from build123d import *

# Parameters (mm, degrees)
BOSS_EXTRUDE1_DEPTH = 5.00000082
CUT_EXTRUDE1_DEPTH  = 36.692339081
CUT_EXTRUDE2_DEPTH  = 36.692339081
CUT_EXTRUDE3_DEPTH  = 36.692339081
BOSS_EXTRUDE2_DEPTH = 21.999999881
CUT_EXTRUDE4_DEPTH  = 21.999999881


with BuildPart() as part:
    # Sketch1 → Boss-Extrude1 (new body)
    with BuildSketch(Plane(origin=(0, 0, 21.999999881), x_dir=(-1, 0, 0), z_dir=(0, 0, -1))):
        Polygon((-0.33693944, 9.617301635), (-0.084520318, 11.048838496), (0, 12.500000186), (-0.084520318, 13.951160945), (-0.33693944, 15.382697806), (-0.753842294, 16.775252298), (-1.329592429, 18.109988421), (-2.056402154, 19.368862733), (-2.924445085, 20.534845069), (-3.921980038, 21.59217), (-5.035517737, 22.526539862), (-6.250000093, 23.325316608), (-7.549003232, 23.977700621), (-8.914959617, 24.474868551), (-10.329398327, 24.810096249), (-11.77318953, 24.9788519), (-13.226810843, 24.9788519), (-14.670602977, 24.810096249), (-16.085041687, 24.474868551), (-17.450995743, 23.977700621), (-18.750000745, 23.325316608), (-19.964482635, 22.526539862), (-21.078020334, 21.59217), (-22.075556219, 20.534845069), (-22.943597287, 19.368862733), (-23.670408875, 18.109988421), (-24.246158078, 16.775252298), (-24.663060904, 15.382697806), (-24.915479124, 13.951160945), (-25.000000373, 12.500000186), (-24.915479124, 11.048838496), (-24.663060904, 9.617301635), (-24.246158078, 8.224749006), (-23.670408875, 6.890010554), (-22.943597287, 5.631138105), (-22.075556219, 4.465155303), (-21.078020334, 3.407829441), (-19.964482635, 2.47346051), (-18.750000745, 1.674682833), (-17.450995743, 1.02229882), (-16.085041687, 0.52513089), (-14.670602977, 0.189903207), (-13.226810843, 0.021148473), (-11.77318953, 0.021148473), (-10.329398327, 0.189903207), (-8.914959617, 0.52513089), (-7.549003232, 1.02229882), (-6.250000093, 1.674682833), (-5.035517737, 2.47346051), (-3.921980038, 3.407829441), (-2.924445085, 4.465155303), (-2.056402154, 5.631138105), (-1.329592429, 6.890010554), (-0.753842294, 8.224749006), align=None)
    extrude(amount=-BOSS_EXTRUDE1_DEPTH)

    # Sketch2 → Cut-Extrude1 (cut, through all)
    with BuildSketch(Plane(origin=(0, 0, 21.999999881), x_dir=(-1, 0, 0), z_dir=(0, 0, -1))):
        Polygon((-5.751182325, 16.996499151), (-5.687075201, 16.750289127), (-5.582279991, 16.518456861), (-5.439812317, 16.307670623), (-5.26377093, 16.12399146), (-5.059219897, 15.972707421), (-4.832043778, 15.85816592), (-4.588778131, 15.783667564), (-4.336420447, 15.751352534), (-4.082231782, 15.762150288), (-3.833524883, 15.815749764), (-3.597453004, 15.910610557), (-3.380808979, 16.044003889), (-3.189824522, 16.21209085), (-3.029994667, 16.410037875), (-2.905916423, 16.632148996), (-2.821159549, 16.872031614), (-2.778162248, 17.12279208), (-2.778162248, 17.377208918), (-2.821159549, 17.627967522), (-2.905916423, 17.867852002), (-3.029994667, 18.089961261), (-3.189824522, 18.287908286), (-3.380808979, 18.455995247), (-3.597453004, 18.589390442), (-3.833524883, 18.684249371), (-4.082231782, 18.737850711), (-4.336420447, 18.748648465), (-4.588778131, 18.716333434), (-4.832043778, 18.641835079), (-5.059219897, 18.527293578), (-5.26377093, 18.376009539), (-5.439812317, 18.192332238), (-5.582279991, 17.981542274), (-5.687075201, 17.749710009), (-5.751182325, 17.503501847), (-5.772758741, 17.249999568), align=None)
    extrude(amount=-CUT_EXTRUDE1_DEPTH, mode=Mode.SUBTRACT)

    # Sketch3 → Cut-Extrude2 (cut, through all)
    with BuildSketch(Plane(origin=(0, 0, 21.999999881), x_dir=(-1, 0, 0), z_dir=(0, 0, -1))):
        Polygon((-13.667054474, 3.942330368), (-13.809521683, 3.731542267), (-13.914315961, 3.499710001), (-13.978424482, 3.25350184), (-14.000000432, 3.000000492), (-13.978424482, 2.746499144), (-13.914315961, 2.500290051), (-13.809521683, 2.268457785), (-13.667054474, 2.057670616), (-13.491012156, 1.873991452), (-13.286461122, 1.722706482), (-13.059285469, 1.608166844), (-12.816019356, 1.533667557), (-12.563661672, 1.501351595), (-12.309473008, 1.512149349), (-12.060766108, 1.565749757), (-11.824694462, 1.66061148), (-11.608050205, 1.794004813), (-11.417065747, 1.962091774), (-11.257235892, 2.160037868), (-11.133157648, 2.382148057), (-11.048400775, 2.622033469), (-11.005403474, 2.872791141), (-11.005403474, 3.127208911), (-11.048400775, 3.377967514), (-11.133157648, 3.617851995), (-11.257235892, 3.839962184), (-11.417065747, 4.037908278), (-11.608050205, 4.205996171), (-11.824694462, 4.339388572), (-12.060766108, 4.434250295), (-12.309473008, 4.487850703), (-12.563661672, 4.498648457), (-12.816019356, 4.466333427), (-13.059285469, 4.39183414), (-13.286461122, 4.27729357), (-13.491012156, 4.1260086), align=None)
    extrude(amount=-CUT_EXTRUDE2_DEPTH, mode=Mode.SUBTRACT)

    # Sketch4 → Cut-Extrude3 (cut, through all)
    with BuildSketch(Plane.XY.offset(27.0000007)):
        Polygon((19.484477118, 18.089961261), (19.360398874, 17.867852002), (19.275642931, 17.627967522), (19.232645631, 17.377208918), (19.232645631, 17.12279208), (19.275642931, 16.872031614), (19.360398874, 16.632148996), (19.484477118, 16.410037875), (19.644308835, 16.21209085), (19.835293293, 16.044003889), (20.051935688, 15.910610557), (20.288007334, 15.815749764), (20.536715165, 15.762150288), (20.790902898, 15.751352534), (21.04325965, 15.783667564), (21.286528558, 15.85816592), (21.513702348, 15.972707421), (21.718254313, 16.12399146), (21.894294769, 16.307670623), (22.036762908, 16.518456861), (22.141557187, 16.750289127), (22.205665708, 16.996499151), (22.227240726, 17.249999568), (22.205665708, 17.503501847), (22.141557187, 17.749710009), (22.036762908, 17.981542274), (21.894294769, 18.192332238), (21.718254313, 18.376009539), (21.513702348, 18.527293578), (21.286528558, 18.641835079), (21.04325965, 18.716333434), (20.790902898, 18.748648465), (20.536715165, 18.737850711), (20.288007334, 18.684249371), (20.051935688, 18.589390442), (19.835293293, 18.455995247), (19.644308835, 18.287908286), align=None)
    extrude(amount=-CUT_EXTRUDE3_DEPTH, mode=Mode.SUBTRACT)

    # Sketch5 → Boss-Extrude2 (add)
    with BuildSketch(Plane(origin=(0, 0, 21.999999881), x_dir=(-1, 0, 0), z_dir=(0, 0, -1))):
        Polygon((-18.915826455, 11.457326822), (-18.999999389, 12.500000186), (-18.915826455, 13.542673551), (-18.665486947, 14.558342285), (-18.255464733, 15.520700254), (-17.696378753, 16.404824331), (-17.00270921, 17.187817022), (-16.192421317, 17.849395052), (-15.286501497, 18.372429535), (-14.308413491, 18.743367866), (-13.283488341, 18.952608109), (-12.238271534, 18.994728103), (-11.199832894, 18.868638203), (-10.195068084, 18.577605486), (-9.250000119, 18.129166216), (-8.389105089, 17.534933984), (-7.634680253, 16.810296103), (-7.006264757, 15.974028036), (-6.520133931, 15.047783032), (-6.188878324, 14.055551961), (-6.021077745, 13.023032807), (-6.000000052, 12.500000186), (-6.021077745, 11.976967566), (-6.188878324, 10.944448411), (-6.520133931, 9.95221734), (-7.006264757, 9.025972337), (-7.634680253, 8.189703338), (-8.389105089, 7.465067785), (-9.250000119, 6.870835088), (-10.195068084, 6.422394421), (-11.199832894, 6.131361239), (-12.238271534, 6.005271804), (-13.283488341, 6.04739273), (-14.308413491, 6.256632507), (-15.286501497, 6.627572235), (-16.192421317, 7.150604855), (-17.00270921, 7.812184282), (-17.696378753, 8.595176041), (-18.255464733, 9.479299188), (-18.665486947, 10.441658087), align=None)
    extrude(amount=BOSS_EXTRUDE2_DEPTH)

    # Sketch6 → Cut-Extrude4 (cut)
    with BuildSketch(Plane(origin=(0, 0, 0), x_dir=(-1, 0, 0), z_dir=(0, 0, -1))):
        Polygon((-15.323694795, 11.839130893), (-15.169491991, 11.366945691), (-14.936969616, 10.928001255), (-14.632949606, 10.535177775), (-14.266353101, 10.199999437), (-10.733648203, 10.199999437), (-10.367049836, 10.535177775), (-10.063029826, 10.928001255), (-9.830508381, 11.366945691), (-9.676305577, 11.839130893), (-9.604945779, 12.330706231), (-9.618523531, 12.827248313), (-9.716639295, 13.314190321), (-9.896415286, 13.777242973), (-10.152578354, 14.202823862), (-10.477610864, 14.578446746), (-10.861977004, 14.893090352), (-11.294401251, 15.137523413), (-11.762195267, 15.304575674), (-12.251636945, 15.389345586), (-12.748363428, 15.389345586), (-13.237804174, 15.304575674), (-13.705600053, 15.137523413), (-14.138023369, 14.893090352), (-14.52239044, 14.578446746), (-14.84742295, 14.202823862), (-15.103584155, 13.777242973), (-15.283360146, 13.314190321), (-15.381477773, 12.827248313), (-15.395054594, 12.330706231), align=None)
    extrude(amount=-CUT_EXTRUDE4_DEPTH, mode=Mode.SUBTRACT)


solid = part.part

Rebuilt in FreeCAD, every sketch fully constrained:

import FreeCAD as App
import Part
import Sketcher
from FreeCAD import Vector
Q = App.Units.Quantity


def add_polygon(sketch, points):
    """Adds a closed chain of lines whose ends are joined by coincident constraints."""
    first, n = sketch.GeometryCount, len(points)
    for a, b in zip(points, points[1:] + points[:1]):
        sketch.addGeometry(Part.LineSegment(App.Vector(*a, 0), App.Vector(*b, 0)), False)
    for i in range(n):
        sketch.addConstraint(Sketcher.Constraint("Coincident", first + i, 2, first + (i + 1) % n, 1))

doc = App.newDocument("Part")
body = doc.addObject("PartDesign::Body", "Body")

# Sketch on XY plane
sketch1 = doc.addObject("Sketcher::SketchObject", "Sketch")
body.addObject(sketch1)
sketch1.AttachmentSupport = (doc.XY_Plane, [""])
sketch1.MapMode = "FlatFace"
sketch1.AttachmentOffset = App.Placement(Vector(0, 0, 22), App.Rotation())
add_polygon(sketch1, [(0.336939, 9.617302), (0.08452, 11.048838), (0, 12.5), (0.08452, 13.951161), (0.336939, 15.382698), (0.753842, 16.775252), (1.329592, 18.109988), (2.056402, 19.368863), (2.924445, 20.534845), (3.92198, 21.59217), (5.035518, 22.52654), (6.25, 23.325317), (7.549003, 23.977701), (8.91496, 24.474869), (10.329398, 24.810096), (11.77319, 24.978852), (13.226811, 24.978852), (14.670603, 24.810096), (16.085042, 24.474869), (17.450996, 23.977701), (18.750001, 23.325317), (19.964483, 22.52654), (21.07802, 21.59217), (22.075556, 20.534845), (22.943597, 19.368863), (23.670409, 18.109988), (24.246158, 16.775252), (24.663061, 15.382698), (24.915479, 13.951161), (25, 12.5), (24.915479, 11.048838), (24.663061, 9.617302), (24.246158, 8.224749), (23.670409, 6.890011), (22.943597, 5.631138), (22.075556, 4.465155), (21.07802, 3.407829), (19.964483, 2.473461), (18.750001, 1.674683), (17.450996, 1.022299), (16.085042, 0.525131), (14.670603, 0.189903), (13.226811, 0.021148), (11.77319, 0.021148), (10.329398, 0.189903), (8.91496, 0.525131), (7.549003, 1.022299), (6.25, 1.674683), (5.035518, 2.473461), (3.92198, 3.407829), (2.924445, 4.465155), (2.056402, 5.631138), (1.329592, 6.890011), (0.753842, 8.224749)])  # lines 0-53
sketch1.addConstraint([
    Sketcher.Constraint("Horizontal", 15),
    Sketcher.Constraint("Horizontal", 42),
    Sketcher.Constraint("PointOnObject", 1, 2, -2),
    Sketcher.Constraint("Parallel", 0, 27),
    Sketcher.Constraint("Parallel", 1, 28),
    Sketcher.Constraint("Parallel", 2, 29),
    Sketcher.Constraint("Parallel", 3, 30),
    Sketcher.Constraint("Parallel", 4, 31),
    Sketcher.Constraint("Parallel", 5, 32),
    Sketcher.Constraint("Parallel", 6, 33),
    Sketcher.Constraint("Parallel", 7, 34),
    Sketcher.Constraint("Parallel", 8, 35),
    Sketcher.Constraint("Parallel", 9, 36),
    Sketcher.Constraint("Parallel", 10, 37),
    Sketcher.Constraint("Parallel", 11, 38),
    Sketcher.Constraint("Parallel", 12, 39),
    Sketcher.Constraint("Parallel", 13, 40),
    Sketcher.Constraint("Parallel", 14, 41),
    Sketcher.Constraint("Parallel", 16, 43),
    Sketcher.Constraint("Parallel", 17, 44),
    Sketcher.Constraint("Parallel", 18, 45),
    Sketcher.Constraint("Parallel", 19, 46),
    Sketcher.Constraint("Parallel", 20, 47),
    Sketcher.Constraint("Parallel", 21, 48),
    Sketcher.Constraint("Parallel", 22, 49),
    Sketcher.Constraint("Parallel", 23, 50),
    Sketcher.Constraint("Parallel", 24, 51),
    Sketcher.Constraint("Parallel", 25, 52),
    Sketcher.Constraint("Parallel", 26, 53),
    Sketcher.Constraint("Horizontal", 13, 2, 16, 2),
    Sketcher.Constraint("Horizontal", 12, 2, 17, 2),
    Sketcher.Constraint("Horizontal", 11, 2, 18, 2),
    Sketcher.Constraint("Horizontal", 10, 2, 19, 2),
    Sketcher.Constraint("Horizontal", 9, 2, 20, 2),
    Sketcher.Constraint("Horizontal", 8, 2, 21, 2),
    Sketcher.Constraint("Horizontal", 7, 2, 22, 2),
    Sketcher.Constraint("Horizontal", 6, 2, 23, 2),
    Sketcher.Constraint("Horizontal", 5, 2, 24, 2),
    Sketcher.Constraint("Horizontal", 4, 2, 25, 2),
    Sketcher.Constraint("Horizontal", 3, 2, 26, 2),
    Sketcher.Constraint("Horizontal", 2, 2, 27, 2),
    Sketcher.Constraint("Horizontal", 1, 2, 28, 2),
    Sketcher.Constraint("Horizontal", 0, 2, 29, 2),
    Sketcher.Constraint("Horizontal", 40, 2, 43, 2),
    Sketcher.Constraint("Horizontal", 39, 2, 44, 2),
    Sketcher.Constraint("Horizontal", 38, 2, 45, 2),
    Sketcher.Constraint("Horizontal", 37, 2, 46, 2),
    Sketcher.Constraint("Horizontal", 36, 2, 47, 2),
    Sketcher.Constraint("Horizontal", 35, 2, 48, 2),
    Sketcher.Constraint("Horizontal", 34, 2, 49, 2),
    Sketcher.Constraint("Horizontal", 33, 2, 50, 2),
    Sketcher.Constraint("Horizontal", 32, 2, 51, 2),
    Sketcher.Constraint("Horizontal", 31, 2, 52, 2),
    Sketcher.Constraint("Horizontal", 30, 2, 53, 2),
    Sketcher.Constraint("Vertical", 0, 2, 2, 2),
    Sketcher.Constraint("Vertical", 27, 2, 29, 2),
    Sketcher.Constraint("Vertical", 26, 2, 30, 2),
    Sketcher.Constraint("Vertical", 25, 2, 31, 2),
    Sketcher.Constraint("Vertical", 24, 2, 32, 2),
    Sketcher.Constraint("Vertical", 23, 2, 33, 2),
    Sketcher.Constraint("Vertical", 22, 2, 34, 2),
    Sketcher.Constraint("Vertical", 21, 2, 35, 2),
    Sketcher.Constraint("Vertical", 20, 2, 36, 2),
    Sketcher.Constraint("Vertical", 19, 2, 37, 2),
    Sketcher.Constraint("Vertical", 18, 2, 38, 2),
    Sketcher.Constraint("Vertical", 17, 2, 39, 2),
    Sketcher.Constraint("Vertical", 16, 2, 40, 2),
    Sketcher.Constraint("Vertical", 15, 2, 41, 2),
    Sketcher.Constraint("Vertical", 14, 2, 42, 2),
    Sketcher.Constraint("Vertical", 13, 2, 43, 2),
    Sketcher.Constraint("Vertical", 12, 2, 44, 2),
    Sketcher.Constraint("Vertical", 11, 2, 45, 2),
    Sketcher.Constraint("Vertical", 10, 2, 46, 2),
    Sketcher.Constraint("Vertical", 9, 2, 47, 2),
    Sketcher.Constraint("Vertical", 8, 2, 48, 2),
    Sketcher.Constraint("Vertical", 7, 2, 49, 2),
    Sketcher.Constraint("Vertical", 6, 2, 50, 2),
    Sketcher.Constraint("Vertical", 5, 2, 51, 2),
    Sketcher.Constraint("Vertical", 4, 2, 52, 2),
    Sketcher.Constraint("Vertical", 3, 2, 53, 2),
    Sketcher.Constraint("Equal", 0, 1),
    Sketcher.Constraint("Equal", 3, 4),
    Sketcher.Constraint("Equal", 3, 5),
    Sketcher.Constraint("Equal", 4, 6),
    Sketcher.Constraint("Equal", 6, 7),
    Sketcher.Constraint("Equal", 7, 8),
    Sketcher.Constraint("Equal", 8, 9),
    Sketcher.Constraint("Equal", 9, 10),
    Sketcher.Constraint("Equal", 10, 11),
    Sketcher.Constraint("Equal", 11, 12),
    Sketcher.Constraint("Equal", 12, 13),
    Sketcher.Constraint("Equal", 13, 14),
    Sketcher.Constraint("Angle", 12, Q("20.000017 deg")),
    Sketcher.Constraint("Angle", 24, Q("-59.999994 deg")),
    Sketcher.Constraint("Angle", 27, Q("-80.000014 deg")),
    Sketcher.Constraint("Angle", 36, Q("-140.000004 deg")),
    Sketcher.Constraint("DistanceX", -1, 1, 28, 2, Q("25 mm")),
    Sketcher.Constraint("DistanceY", -1, 1, 1, 2, Q("12.5 mm")),
    Sketcher.Constraint("DistanceX", -1, 1, 10, 2, Q("6.25 mm")),
    Sketcher.Constraint("DistanceX", 15, 1, 15, 2, Q("1.453621 mm")),
    Sketcher.Constraint("DistanceY", -1, 1, 11, 2, Q("23.977701 mm")),
    Sketcher.Constraint("DistanceX", -1, 1, 13, 2, Q("10.329398 mm")),
    Sketcher.Constraint("DistanceY", -1, 1, 30, 2, Q("9.617302 mm")),
    Sketcher.Constraint("DistanceY", 2, 2, 6, 2, Q("5.417702 mm")),
    Sketcher.Constraint("DistanceX", 6, 2, 11, 2, Q("5.492601 mm")),
    Sketcher.Constraint("DistanceY", 8, 2, 12, 2, Q("2.882699 mm")),
    Sketcher.Constraint("DistanceX", 11, 2, 16, 2, Q("7.1216 mm")),
    Sketcher.Constraint("DistanceX", 22, 2, 25, 2, Q("2.170602 mm")),
])
pad1 = doc.addObject("PartDesign::Pad", "Pad")
body.addObject(pad1)
pad1.Profile = sketch1
pad1.Length = 5.000001

# Sketch on XY plane
sketch2 = doc.addObject("Sketcher::SketchObject", "Sketch001")
body.addObject(sketch2)
sketch2.AttachmentSupport = (doc.XY_Plane, [""])
sketch2.MapMode = "FlatFace"
sketch2.AttachmentOffset = App.Placement(Vector(0, 0, 22), App.Rotation())
add_polygon(sketch2, [(5.751182, 16.996499), (5.687075, 16.750289), (5.58228, 16.518457), (5.439812, 16.307671), (5.263771, 16.123991), (5.05922, 15.972707), (4.832044, 15.858166), (4.588778, 15.783668), (4.33642, 15.751353), (4.082232, 15.76215), (3.833525, 15.81575), (3.597453, 15.910611), (3.380809, 16.044004), (3.189825, 16.212091), (3.029995, 16.410038), (2.905916, 16.632149), (2.82116, 16.872032), (2.778162, 17.122792), (2.778162, 17.377209), (2.82116, 17.627968), (2.905916, 17.867852), (3.029995, 18.089961), (3.189825, 18.287908), (3.380809, 18.455995), (3.597453, 18.58939), (3.833525, 18.684249), (4.082232, 18.737851), (4.33642, 18.748648), (4.588778, 18.716333), (4.832044, 18.641835), (5.05922, 18.527294), (5.263771, 18.37601), (5.439812, 18.192332), (5.58228, 17.981542), (5.687075, 17.74971), (5.751182, 17.503502), (5.772759, 17.25)])  # lines 0-36
sketch2.addConstraint([
    Sketcher.Constraint("Vertical", 17),
    Sketcher.Constraint("DistanceY", -1, 1, 35, 2, Q("17.25 mm")),
    Sketcher.Constraint("DistanceY", 31, 2, 27, 2, Q("0.524001 mm")),
    Sketcher.Constraint("DistanceY", -1, 1, 34, 2, Q("17.503502 mm")),
    Sketcher.Constraint("DistanceY", -1, 1, 36, 2, Q("16.996499 mm")),
    Sketcher.Constraint("DistanceY", 6, 2, 5, 2, Q("0.074498 mm")),
    Sketcher.Constraint("DistanceX", 6, 2, 1, 2, Q("0.993502 mm")),
    Sketcher.Constraint("DistanceX", 7, 2, 4, 2, Q("0.722799 mm")),
    Sketcher.Constraint("DistanceY", 8, 2, 9, 2, Q("0.053599 mm")),
    Sketcher.Constraint("DistanceX", 12, 2, 9, 2, Q("0.6437 mm")),
    Sketcher.Constraint("DistanceY", 9, 2, 14, 2, Q("0.816399 mm")),
    Sketcher.Constraint("DistanceY", 12, 2, 16, 2, Q("0.910701 mm")),
    Sketcher.Constraint("DistanceY", 17, 2, 21, 2, Q("0.910699 mm")),
    Sketcher.Constraint("DistanceX", 21, 2, 24, 2, Q("0.6437 mm")),
    Sketcher.Constraint("DistanceY", 24, 2, 25, 2, Q("0.053601 mm")),
    Sketcher.Constraint("DistanceY", 24, 2, 26, 2, Q("0.064399 mm")),
    Sketcher.Constraint("DistanceY", 28, 2, 27, 2, Q("0.074498 mm")),
    Sketcher.Constraint("DistanceX", 26, 2, 29, 2, Q("0.722799 mm")),
    Sketcher.Constraint("DistanceX", 27, 2, 32, 2, Q("0.993502 mm")),
    Sketcher.Constraint("DistanceY", 33, 2, 30, 2, Q("0.6263 mm")),
    Sketcher.Constraint("Distance", 0, Q("0.254419 mm")),
    Sketcher.Constraint("Distance", 3, Q("0.254418 mm")),
    Sketcher.Constraint("Distance", 5, Q("0.254418 mm")),
    Sketcher.Constraint("Distance", 7, Q("0.254418 mm")),
    Sketcher.Constraint("Distance", 13, Q("0.254418 mm")),
    Sketcher.Constraint("Distance", 14, Q("0.254418 mm")),
    Sketcher.Constraint("Distance", 16, Q("0.25442 mm")),
    Sketcher.Constraint("Distance", 18, Q("0.254418 mm")),
    Sketcher.Constraint("Distance", 21, Q("0.254418 mm")),
    Sketcher.Constraint("Distance", 23, Q("0.254419 mm")),
    Sketcher.Constraint("Distance", 27, Q("0.254418 mm")),
    Sketcher.Constraint("Distance", 29, Q("0.254418 mm")),
    Sketcher.Constraint("Distance", 32, Q("0.25442 mm")),
    Sketcher.Constraint("Distance", 35, Q("0.254419 mm")),
    Sketcher.Constraint("DistanceY", 17, 1, 17, 2, Q("0.254417 mm")),
    Sketcher.Constraint("DistanceY", -1, 1, 0, 2, Q("16.750289 mm")),
    Sketcher.Constraint("DistanceX", -1, 1, 1, 2, Q("5.58228 mm")),
    Sketcher.Constraint("DistanceY", -1, 1, 2, 2, Q("16.307671 mm")),
    Sketcher.Constraint("DistanceX", -1, 1, 3, 2, Q("5.263771 mm")),
    Sketcher.Constraint("DistanceY", -1, 1, 3, 2, Q("16.123991 mm")),
    Sketcher.Constraint("DistanceX", -1, 1, 4, 2, Q("5.05922 mm")),
    Sketcher.Constraint("DistanceX", -1, 1, 8, 2, Q("4.082232 mm")),
    Sketcher.Constraint("DistanceY", -1, 1, 8, 2, Q("15.76215 mm")),
    Sketcher.Constraint("DistanceY", -1, 1, 10, 2, Q("15.910611 mm")),
    Sketcher.Constraint("DistanceX", -1, 1, 11, 2, Q("3.380809 mm")),
    Sketcher.Constraint("DistanceY", -1, 1, 12, 2, Q("16.212091 mm")),
    Sketcher.Constraint("DistanceX", -1, 1, 15, 2, Q("2.82116 mm")),
    Sketcher.Constraint("DistanceY", -1, 1, 15, 2, Q("16.872032 mm")),
    Sketcher.Constraint("DistanceX", -1, 1, 18, 2, Q("2.82116 mm")),
    Sketcher.Constraint("DistanceY", -1, 1, 20, 2, Q("18.089961 mm")),
    Sketcher.Constraint("DistanceX", -1, 1, 22, 2, Q("3.380809 mm")),
    Sketcher.Constraint("DistanceY", -1, 1, 23, 2, Q("18.58939 mm")),
    Sketcher.Constraint("DistanceY", -1, 1, 24, 2, Q("18.684249 mm")),
    Sketcher.Constraint("DistanceX", -1, 1, 25, 2, Q("4.082232 mm")),
    Sketcher.Constraint("DistanceX", -1, 1, 26, 2, Q("4.33642 mm")),
    Sketcher.Constraint("DistanceX", -1, 1, 27, 2, Q("4.588778 mm")),
    Sketcher.Constraint("DistanceX", -1, 1, 30, 2, Q("5.263771 mm")),
    Sketcher.Constraint("DistanceY", -1, 1, 30, 2, Q("18.37601 mm")),
    Sketcher.Constraint("DistanceX", -1, 1, 35, 2, Q("5.772759 mm")),
    Sketcher.Constraint("DistanceY", 4, 2, 1, 2, Q("0.545749 mm")),
    Sketcher.Constraint("DistanceY", 4, 2, 0, 2, Q("0.777582 mm")),
    Sketcher.Constraint("DistanceY", 5, 2, 4, 2, Q("0.114542 mm")),
    Sketcher.Constraint("DistanceX", 5, 2, 0, 2, Q("0.855031 mm")),
    Sketcher.Constraint("DistanceX", 9, 2, 5, 2, Q("0.998519 mm")),
    Sketcher.Constraint("DistanceX", 10, 2, 9, 2, Q("0.236072 mm")),
    Sketcher.Constraint("DistanceY", 7, 2, 11, 2, Q("0.292651 mm")),
    Sketcher.Constraint("DistanceX", 13, 2, 12, 2, Q("0.15983 mm")),
    Sketcher.Constraint("DistanceY", 16, 2, 19, 2, Q("0.74506 mm")),
    Sketcher.Constraint("DistanceX", 19, 2, 20, 2, Q("0.124078 mm")),
    Sketcher.Constraint("DistanceX", 21, 2, 23, 2, Q("0.407628 mm")),
    Sketcher.Constraint("DistanceX", 23, 2, 25, 2, Q("0.484779 mm")),
    Sketcher.Constraint("DistanceX", 25, 2, 28, 2, Q("0.749812 mm")),
    Sketcher.Constraint("DistanceX", 30, 2, 31, 2, Q("0.176041 mm")),
    Sketcher.Constraint("Distance", 33, Q("0.254417 mm")),
])
pocket1 = doc.addObject("PartDesign::Pocket", "Pocket")
body.addObject(pocket1)
pocket1.Profile = sketch2
pocket1.Type = "ThroughAll"
pocket1.Reversed = True

# Sketch on XY plane
sketch3 = doc.addObject("Sketcher::SketchObject", "Sketch002")
body.addObject(sketch3)
sketch3.AttachmentSupport = (doc.XY_Plane, [""])
sketch3.MapMode = "FlatFace"
sketch3.AttachmentOffset = App.Placement(Vector(0, 0, 22), App.Rotation())
add_polygon(sketch3, [(13.667054, 3.94233), (13.809522, 3.731542), (13.914316, 3.49971), (13.978424, 3.253502), (14, 3), (13.978424, 2.746499), (13.914316, 2.50029), (13.809522, 2.268458), (13.667054, 2.057671), (13.491012, 1.873991), (13.286461, 1.722706), (13.059285, 1.608167), (12.816019, 1.533668), (12.563662, 1.501352), (12.309473, 1.512149), (12.060766, 1.56575), (11.824694, 1.660611), (11.60805, 1.794005), (11.417066, 1.962092), (11.257236, 2.160038), (11.133158, 2.382148), (11.048401, 2.622033), (11.005403, 2.872791), (11.005403, 3.127209), (11.048401, 3.377968), (11.133158, 3.617852), (11.257236, 3.839962), (11.417066, 4.037908), (11.60805, 4.205996), (11.824694, 4.339389), (12.060766, 4.43425), (12.309473, 4.487851), (12.563662, 4.498648), (12.816019, 4.466333), (13.059285, 4.391834), (13.286461, 4.277294), (13.491012, 4.126009)])  # lines 0-36
sketch3.addConstraint([
    Sketcher.Constraint("Vertical", 22),
    Sketcher.Constraint("Vertical", 2, 2, 4, 2),
    Sketcher.Constraint("Vertical", 1, 2, 5, 2),
    Sketcher.Constraint("Vertical", 0, 2, 6, 2),
    Sketcher.Constraint("Vertical", 20, 2, 23, 2),
    Sketcher.Constraint("Vertical", 19, 2, 24, 2),
    Sketcher.Constraint("Vertical", 18, 2, 25, 2),
    Sketcher.Constraint("Vertical", 17, 2, 26, 2),
    Sketcher.Constraint("Vertical", 16, 2, 27, 2),
    Sketcher.Constraint("Vertical", 15, 2, 28, 2),
    Sketcher.Constraint("Vertical", 14, 2, 29, 2),
    Sketcher.Constraint("Vertical", 13, 2, 30, 2),
    Sketcher.Constraint("Vertical", 12, 2, 31, 2),
    Sketcher.Constraint("Vertical", 11, 2, 32, 2),
    Sketcher.Constraint("Vertical", 10, 2, 33, 2),
    Sketcher.Constraint("Vertical", 9, 2, 34, 2),
    Sketcher.Constraint("Vertical", 8, 2, 35, 2),
    Sketcher.Constraint("Vertical", 7, 2, 36, 2),
    Sketcher.Constraint("Equal", 0, 1),
    Sketcher.Constraint("Equal", 1, 2),
    Sketcher.Constraint("Equal", 2, 3),
    Sketcher.Constraint("Equal", 3, 4),
    Sketcher.Constraint("Equal", 4, 5),
    Sketcher.Constraint("Equal", 5, 6),
    Sketcher.Constraint("Equal", 6, 7),
    Sketcher.Constraint("Equal", 7, 8),
    Sketcher.Constraint("Equal", 8, 9),
    Sketcher.Constraint("Equal", 9, 10),
    Sketcher.Constraint("Equal", 10, 11),
    Sketcher.Constraint("Equal", 11, 12),
    Sketcher.Constraint("Equal", 12, 13),
    Sketcher.Constraint("Equal", 13, 14),
    Sketcher.Constraint("Equal", 14, 15),
    Sketcher.Constraint("Equal", 15, 16),
    Sketcher.Constraint("Equal", 16, 17),
    Sketcher.Constraint("Equal", 17, 18),
    Sketcher.Constraint("Equal", 18, 19),
    Sketcher.Constraint("Equal", 19, 20),
    Sketcher.Constraint("Equal", 20, 21),
    Sketcher.Constraint("Equal", 21, 23),
    Sketcher.Constraint("Equal", 23, 24),
    Sketcher.Constraint("Equal", 24, 25),
    Sketcher.Constraint("Equal", 25, 26),
    Sketcher.Constraint("Equal", 26, 27),
    Sketcher.Constraint("Equal", 27, 28),
    Sketcher.Constraint("Equal", 28, 29),
    Sketcher.Constraint("Equal", 29, 30),
    Sketcher.Constraint("Equal", 30, 31),
    Sketcher.Constraint("Equal", 31, 32),
    Sketcher.Constraint("Equal", 32, 33),
    Sketcher.Constraint("Equal", 33, 34),
    Sketcher.Constraint("Equal", 34, 35),
    Sketcher.Constraint("Equal", 35, 36),
    Sketcher.Constraint("DistanceX", -1, 1, 3, 2, Q("14 mm")),
    Sketcher.Constraint("DistanceY", -1, 1, 3, 2, Q("3 mm")),
    Sketcher.Constraint("DistanceY", -1, 1, 2, 2, Q("3.253502 mm")),
    Sketcher.Constraint("DistanceX", -1, 1, 20, 2, Q("11.048401 mm")),
    Sketcher.Constraint("DistanceY", 8, 2, 5, 2, Q("0.626299 mm")),
    Sketcher.Constraint("DistanceY", 11, 2, 10, 2, Q("0.074499 mm")),
    Sketcher.Constraint("DistanceX", 12, 2, 9, 2, Q("0.722799 mm")),
    Sketcher.Constraint("DistanceY", 13, 2, 14, 2, Q("0.0536 mm")),
    Sketcher.Constraint("DistanceY", 12, 2, 14, 2, Q("0.064398 mm")),
    Sketcher.Constraint("DistanceX", 17, 2, 14, 2, Q("0.6437 mm")),
    Sketcher.Constraint("DistanceY", 14, 2, 19, 2, Q("0.816398 mm")),
    Sketcher.Constraint("DistanceY", 17, 2, 21, 2, Q("0.910699 mm")),
    Sketcher.Constraint("Distance", 0, Q("0.254418 mm")),
    Sketcher.Constraint("DistanceY", 22, 1, 22, 2, Q("0.254418 mm")),
    Sketcher.Constraint("DistanceX", -1, 1, 0, 2, Q("13.809522 mm")),
    Sketcher.Constraint("DistanceY", -1, 1, 1, 2, Q("3.49971 mm")),
    Sketcher.Constraint("DistanceY", -1, 1, 7, 2, Q("2.057671 mm")),
    Sketcher.Constraint("DistanceX", -1, 1, 9, 2, Q("13.286461 mm")),
    Sketcher.Constraint("DistanceX", -1, 1, 11, 2, Q("12.816019 mm")),
    Sketcher.Constraint("DistanceY", -1, 1, 15, 2, Q("1.660611 mm")),
    Sketcher.Constraint("DistanceX", 18, 2, 17, 2, Q("0.15983 mm")),
])
pocket2 = doc.addObject("PartDesign::Pocket", "Pocket001")
body.addObject(pocket2)
pocket2.Profile = sketch3
pocket2.Type = "ThroughAll"
pocket2.Reversed = True

# Sketch on XY plane
sketch4 = doc.addObject("Sketcher::SketchObject", "Sketch003")
body.addObject(sketch4)
sketch4.AttachmentSupport = (doc.XY_Plane, [""])
sketch4.MapMode = "FlatFace"
sketch4.AttachmentOffset = App.Placement(Vector(0, 0, 27.000001), App.Rotation())
add_polygon(sketch4, [(19.484477, 18.089961), (19.360399, 17.867852), (19.275643, 17.627968), (19.232646, 17.377209), (19.232646, 17.122792), (19.275643, 16.872032), (19.360399, 16.632149), (19.484477, 16.410038), (19.644309, 16.212091), (19.835293, 16.044004), (20.051936, 15.910611), (20.288007, 15.81575), (20.536715, 15.76215), (20.790903, 15.751353), (21.04326, 15.783668), (21.286529, 15.858166), (21.513702, 15.972707), (21.718254, 16.123991), (21.894295, 16.307671), (22.036763, 16.518457), (22.141557, 16.750289), (22.205666, 16.996499), (22.227241, 17.25), (22.205666, 17.503502), (22.141557, 17.74971), (22.036763, 17.981542), (21.894295, 18.192332), (21.718254, 18.37601), (21.513702, 18.527294), (21.286529, 18.641835), (21.04326, 18.716333), (20.790903, 18.748648), (20.536715, 18.737851), (20.288007, 18.684249), (20.051936, 18.58939), (19.835293, 18.455995), (19.644309, 18.287908)])  # lines 0-36
sketch4.addConstraint([
    Sketcher.Constraint("Vertical", 3),
    Sketcher.Constraint("DistanceY", -1, 1, 21, 2, Q("17.25 mm")),
    Sketcher.Constraint("DistanceY", 25, 2, 29, 2, Q("0.524001 mm")),
    Sketcher.Constraint("DistanceX", -1, 1, 0, 2, Q("19.360399 mm")),
    Sketcher.Constraint("DistanceX", -1, 1, 5, 2, Q("19.360399 mm")),
    Sketcher.Constraint("DistanceY", -1, 1, 20, 2, Q("16.996499 mm")),
    Sketcher.Constraint("DistanceY", -1, 1, 22, 2, Q("17.503502 mm")),
    Sketcher.Constraint("DistanceY", 7, 2, 3, 2, Q("0.910701 mm")),
    Sketcher.Constraint("DistanceX", 7, 2, 10, 2, Q("0.643698 mm")),
    Sketcher.Constraint("DistanceY", 10, 2, 5, 2, Q("0.816399 mm")),
    Sketcher.Constraint("DistanceY", 11, 2, 10, 2, Q("0.053599 mm")),
    Sketcher.Constraint("DistanceY", 13, 2, 14, 2, Q("0.074498 mm")),
    Sketcher.Constraint("DistanceX", 12, 2, 15, 2, Q("0.722799 mm")),
    Sketcher.Constraint("DistanceY", 23, 2, 26, 2, Q("0.6263 mm")),
    Sketcher.Constraint("DistanceY", 28, 2, 29, 2, Q("0.074498 mm")),
    Sketcher.Constraint("DistanceX", 30, 2, 27, 2, Q("0.722799 mm")),
    Sketcher.Constraint("DistanceY", 32, 2, 31, 2, Q("0.053601 mm")),
    Sketcher.Constraint("DistanceY", 32, 2, 30, 2, Q("0.064399 mm")),
    Sketcher.Constraint("DistanceX", 35, 2, 32, 2, Q("0.643698 mm")),
    Sketcher.Constraint("Distance", 2, Q("0.254418 mm")),
    Sketcher.Constraint("Distance", 4, Q("0.25442 mm")),
    Sketcher.Constraint("Distance", 6, Q("0.254418 mm")),
    Sketcher.Constraint("Distance", 7, Q("0.254419 mm")),
    Sketcher.Constraint("Distance", 14, Q("0.25442 mm")),
    Sketcher.Constraint("Distance", 20, Q("0.254419 mm")),
    Sketcher.Constraint("Distance", 22, Q("0.254419 mm")),
    Sketcher.Constraint("Distance", 25, Q("0.25442 mm")),
    Sketcher.Constraint("Distance", 29, Q("0.25442 mm")),
    Sketcher.Constraint("Distance", 32, Q("0.254418 mm")),
    Sketcher.Constraint("Distance", 36, Q("0.254419 mm")),
    Sketcher.Constraint("DistanceY", 3, 2, 3, 1, Q("0.254417 mm")),
    Sketcher.Constraint("DistanceY", -1, 1, 2, 2, Q("17.377209 mm")),
    Sketcher.Constraint("DistanceY", -1, 1, 4, 2, Q("16.872032 mm")),
    Sketcher.Constraint("DistanceY", -1, 1, 5, 2, Q("16.632149 mm")),
    Sketcher.Constraint("DistanceX", -1, 1, 7, 2, Q("19.644309 mm")),
    Sketcher.Constraint("DistanceY", -1, 1, 9, 2, Q("15.910611 mm")),
    Sketcher.Constraint("DistanceX", -1, 1, 13, 2, Q("21.04326 mm")),
    Sketcher.Constraint("DistanceY", -1, 1, 16, 2, Q("16.123991 mm")),
    Sketcher.Constraint("DistanceY", -1, 1, 17, 2, Q("16.307671 mm")),
    Sketcher.Constraint("DistanceY", -1, 1, 19, 2, Q("16.750289 mm")),
    Sketcher.Constraint("DistanceX", -1, 1, 21, 2, Q("22.227241 mm")),
    Sketcher.Constraint("DistanceY", -1, 1, 23, 2, Q("17.74971 mm")),
    Sketcher.Constraint("DistanceX", -1, 1, 28, 2, Q("21.286529 mm")),
    Sketcher.Constraint("DistanceY", -1, 1, 30, 2, Q("18.748648 mm")),
    Sketcher.Constraint("DistanceY", -1, 1, 33, 2, Q("18.58939 mm")),
    Sketcher.Constraint("DistanceX", -1, 1, 35, 2, Q("19.644309 mm")),
    Sketcher.Constraint("DistanceY", -1, 1, 35, 2, Q("18.287908 mm")),
    Sketcher.Constraint("DistanceY", -1, 1, 36, 2, Q("18.089961 mm")),
    Sketcher.Constraint("DistanceY", 2, 2, 1, 2, Q("0.250759 mm")),
    Sketcher.Constraint("DistanceY", 3, 2, 0, 2, Q("0.74506 mm")),
    Sketcher.Constraint("DistanceX", 3, 2, 6, 2, Q("0.251831 mm")),
    Sketcher.Constraint("DistanceX", 4, 2, 8, 2, Q("0.55965 mm")),
    Sketcher.Constraint("DistanceY", 8, 2, 3, 2, Q("1.078788 mm")),
    Sketcher.Constraint("DistanceX", 6, 2, 9, 2, Q("0.567459 mm")),
    Sketcher.Constraint("DistanceX", 9, 2, 11, 2, Q("0.484779 mm")),
    Sketcher.Constraint("DistanceY", 12, 2, 9, 2, Q("0.159258 mm")),
    Sketcher.Constraint("DistanceX", 8, 2, 12, 2, Q("0.95561 mm")),
    Sketcher.Constraint("DistanceY", 14, 2, 15, 2, Q("0.114542 mm")),
    Sketcher.Constraint("DistanceX", 15, 2, 16, 2, Q("0.204552 mm")),
    Sketcher.Constraint("DistanceX", 16, 2, 17, 2, Q("0.17604 mm")),
    Sketcher.Constraint("DistanceX", 17, 2, 18, 2, Q("0.142468 mm")),
    Sketcher.Constraint("DistanceY", 15, 2, 18, 2, Q("0.545749 mm")),
    Sketcher.Constraint("DistanceY", 15, 2, 19, 2, Q("0.777582 mm")),
    Sketcher.Constraint("DistanceX", 14, 2, 19, 2, Q("0.855029 mm")),
    Sketcher.Constraint("DistanceX", 23, 2, 22, 2, Q("0.064109 mm")),
    Sketcher.Constraint("DistanceY", 22, 2, 24, 2, Q("0.47804 mm")),
    Sketcher.Constraint("DistanceX", 25, 2, 24, 2, Q("0.142468 mm")),
    Sketcher.Constraint("DistanceX", 25, 2, 22, 2, Q("0.311371 mm")),
    Sketcher.Constraint("DistanceX", 26, 2, 25, 2, Q("0.17604 mm")),
    Sketcher.Constraint("DistanceX", 27, 2, 26, 2, Q("0.204552 mm")),
    Sketcher.Constraint("DistanceY", 25, 2, 27, 2, Q("0.334961 mm")),
    Sketcher.Constraint("DistanceX", 33, 2, 32, 2, Q("0.236072 mm")),
    Sketcher.Constraint("DistanceX", 34, 2, 31, 2, Q("0.701422 mm")),
    Sketcher.Constraint("Distance", 34, Q("0.254417 mm")),
])
pocket3 = doc.addObject("PartDesign::Pocket", "Pocket002")
body.addObject(pocket3)
pocket3.Profile = sketch4
pocket3.Type = "ThroughAll"

# Sketch on XY plane
sketch5 = doc.addObject("Sketcher::SketchObject", "Sketch004")
body.addObject(sketch5)
sketch5.AttachmentSupport = (doc.XY_Plane, [""])
sketch5.MapMode = "FlatFace"
sketch5.AttachmentOffset = App.Placement(Vector(0, 0, 22), App.Rotation())
add_polygon(sketch5, [(18.999999, 12.5), (18.915826, 11.457327), (18.665487, 10.441658), (18.255465, 9.479299), (17.696379, 8.595176), (17.002709, 7.812184), (16.192421, 7.150605), (15.286501, 6.627572), (14.308413, 6.256633), (13.283488, 6.047393), (12.238272, 6.005272), (11.199833, 6.131361), (10.195068, 6.422394), (9.25, 6.870835), (8.389105, 7.465068), (7.63468, 8.189703), (7.006265, 9.025972), (6.520134, 9.952217), (6.188878, 10.944448), (6.021078, 11.976968), (6, 12.5), (6.021078, 13.023033), (6.188878, 14.055552), (6.520134, 15.047783), (7.006265, 15.974028), (7.63468, 16.810296), (8.389105, 17.534934), (9.25, 18.129166), (10.195068, 18.577605), (11.199833, 18.868638), (12.238272, 18.994728), (13.283488, 18.952608), (14.308413, 18.743368), (15.286501, 18.37243), (16.192421, 17.849395), (17.002709, 17.187817), (17.696379, 16.404824), (18.255465, 15.5207), (18.665487, 14.558342), (18.915826, 13.542674)])  # lines 0-39
sketch5.addConstraint([
    Sketcher.Constraint("DistanceX", -1, 1, 19, 2, Q("6 mm")),
    Sketcher.Constraint("DistanceX", -1, 1, 39, 2, Q("18.999999 mm")),
    Sketcher.Constraint("DistanceY", -1, 1, 19, 2, Q("12.5 mm")),
    Sketcher.Constraint("DistanceY", -1, 1, 39, 2, Q("12.5 mm")),
    Sketcher.Constraint("DistanceX", -1, 1, 12, 2, Q("9.25 mm")),
    Sketcher.Constraint("DistanceX", -1, 1, 26, 2, Q("9.25 mm")),
    Sketcher.Constraint("DistanceY", 8, 2, 11, 2, Q("0.375002 mm")),
    Sketcher.Constraint("DistanceY", -1, 1, 2, 2, Q("9.479299 mm")),
    Sketcher.Constraint("DistanceX", -1, 1, 6, 2, Q("15.286501 mm")),
    Sketcher.Constraint("DistanceX", -1, 1, 32, 2, Q("15.286501 mm")),
    Sketcher.Constraint("DistanceY", -1, 1, 36, 2, Q("15.5207 mm")),
    Sketcher.Constraint("DistanceY", 9, 2, 6, 2, Q("0.6223 mm")),
    Sketcher.Constraint("DistanceX", 17, 2, 14, 2, Q("1.445802 mm")),
    Sketcher.Constraint("DistanceX", 18, 2, 17, 2, Q("0.167801 mm")),
    Sketcher.Constraint("DistanceY", 13, 2, 18, 2, Q("4.5119 mm")),
    Sketcher.Constraint("DistanceX", 20, 2, 17, 2, Q("0.167801 mm")),
    Sketcher.Constraint("DistanceX", 20, 2, 21, 2, Q("0.167801 mm")),
    Sketcher.Constraint("DistanceX", 21, 2, 24, 2, Q("1.445802 mm")),
    Sketcher.Constraint("DistanceY", 20, 2, 25, 2, Q("4.511901 mm")),
    Sketcher.Constraint("DistanceY", 26, 2, 31, 2, Q("0.614202 mm")),
    Sketcher.Constraint("DistanceY", 32, 2, 29, 2, Q("0.622299 mm")),
    Sketcher.Constraint("DistanceY", -1, 1, 1, 2, Q("10.441658 mm")),
    Sketcher.Constraint("DistanceX", -1, 1, 3, 2, Q("17.696379 mm")),
    Sketcher.Constraint("DistanceX", -1, 1, 4, 2, Q("17.002709 mm")),
    Sketcher.Constraint("DistanceX", -1, 1, 5, 2, Q("16.192421 mm")),
    Sketcher.Constraint("DistanceX", -1, 1, 8, 2, Q("13.283488 mm")),
    Sketcher.Constraint("DistanceX", -1, 1, 9, 2, Q("12.238272 mm")),
    Sketcher.Constraint("DistanceY", -1, 1, 9, 2, Q("6.005272 mm")),
    Sketcher.Constraint("DistanceY", -1, 1, 10, 2, Q("6.131361 mm")),
    Sketcher.Constraint("DistanceX", -1, 1, 11, 2, Q("10.195068 mm")),
    Sketcher.Constraint("DistanceX", -1, 1, 14, 2, Q("7.63468 mm")),
    Sketcher.Constraint("DistanceY", -1, 1, 17, 2, Q("10.944448 mm")),
    Sketcher.Constraint("DistanceY", -1, 1, 21, 2, Q("14.055552 mm")),
    Sketcher.Constraint("DistanceY", -1, 1, 23, 2, Q("15.974028 mm")),
    Sketcher.Constraint("DistanceX", -1, 1, 27, 2, Q("10.195068 mm")),
    Sketcher.Constraint("DistanceY", -1, 1, 28, 2, Q("18.868638 mm")),
    Sketcher.Constraint("DistanceX", -1, 1, 29, 2, Q("12.238272 mm")),
    Sketcher.Constraint("DistanceY", -1, 1, 29, 2, Q("18.994728 mm")),
    Sketcher.Constraint("DistanceX", -1, 1, 30, 2, Q("13.283488 mm")),
    Sketcher.Constraint("DistanceY", -1, 1, 30, 2, Q("18.952608 mm")),
    Sketcher.Constraint("DistanceX", -1, 1, 33, 2, Q("16.192421 mm")),
    Sketcher.Constraint("DistanceX", -1, 1, 34, 2, Q("17.002709 mm")),
    Sketcher.Constraint("DistanceX", -1, 1, 35, 2, Q("17.696379 mm")),
    Sketcher.Constraint("DistanceX", 1, 2, 0, 2, Q("0.25034 mm")),
    Sketcher.Constraint("DistanceY", 1, 2, 0, 2, Q("1.015669 mm")),
    Sketcher.Constraint("DistanceX", 2, 2, 0, 2, Q("0.660362 mm")),
    Sketcher.Constraint("DistanceX", 3, 2, 1, 2, Q("0.969108 mm")),
    Sketcher.Constraint("DistanceY", 3, 2, 0, 2, Q("2.862151 mm")),
    Sketcher.Constraint("DistanceY", 4, 2, 3, 2, Q("0.782992 mm")),
    Sketcher.Constraint("DistanceY", 5, 2, 4, 2, Q("0.661579 mm")),
    Sketcher.Constraint("DistanceX", 7, 2, 6, 2, Q("0.978088 mm")),
    Sketcher.Constraint("DistanceY", 7, 2, 6, 2, Q("0.37094 mm")),
    Sketcher.Constraint("DistanceY", 8, 2, 7, 2, Q("0.20924 mm")),
    Sketcher.Constraint("DistanceX", 10, 2, 9, 2, Q("1.038439 mm")),
    Sketcher.Constraint("DistanceY", 11, 2, 12, 2, Q("0.448441 mm")),
    Sketcher.Constraint("DistanceY", 12, 2, 14, 2, Q("1.318868 mm")),
    Sketcher.Constraint("DistanceY", 14, 2, 15, 2, Q("0.836269 mm")),
    Sketcher.Constraint("DistanceX", 15, 2, 13, 2, Q("1.38284 mm")),
    Sketcher.Constraint("DistanceX", 15, 2, 10, 2, Q("4.193568 mm")),
    Sketcher.Constraint("DistanceX", 16, 2, 15, 2, Q("0.486131 mm")),
    Sketcher.Constraint("DistanceY", 13, 2, 16, 2, Q("2.48715 mm")),
    Sketcher.Constraint("DistanceY", 16, 2, 17, 2, Q("0.992231 mm")),
    Sketcher.Constraint("DistanceY", 15, 2, 20, 2, Q("3.99706 mm")),
    Sketcher.Constraint("DistanceY", 21, 2, 22, 2, Q("0.992231 mm")),
    Sketcher.Constraint("DistanceX", 22, 2, 23, 2, Q("0.486131 mm")),
    Sketcher.Constraint("DistanceY", 23, 2, 24, 2, Q("0.836268 mm")),
    Sketcher.Constraint("DistanceX", 23, 2, 25, 2, Q("1.38284 mm")),
    Sketcher.Constraint("DistanceY", 24, 2, 26, 2, Q("1.31887 mm")),
    Sketcher.Constraint("DistanceY", 26, 2, 27, 2, Q("0.448439 mm")),
    Sketcher.Constraint("DistanceX", 23, 2, 28, 2, Q("4.193568 mm")),
    Sketcher.Constraint("DistanceX", 28, 2, 29, 2, Q("1.038439 mm")),
    Sketcher.Constraint("DistanceX", 29, 2, 31, 2, Q("2.070142 mm")),
    Sketcher.Constraint("DistanceY", 34, 2, 33, 2, Q("0.661578 mm")),
    Sketcher.Constraint("DistanceY", 34, 2, 31, 2, Q("1.555551 mm")),
    Sketcher.Constraint("DistanceY", 35, 2, 33, 2, Q("1.444571 mm")),
    Sketcher.Constraint("DistanceX", 36, 2, 0, 2, Q("0.660362 mm")),
    Sketcher.Constraint("DistanceX", 35, 2, 37, 2, Q("0.969108 mm")),
    Sketcher.Constraint("DistanceX", 37, 2, 38, 2, Q("0.25034 mm")),
    Sketcher.Constraint("DistanceY", 38, 2, 37, 2, Q("1.015669 mm")),
    Sketcher.Constraint("DistanceY", 38, 2, 35, 2, Q("2.862151 mm")),
])
pad2 = doc.addObject("PartDesign::Pad", "Pad001")
body.addObject(pad2)
pad2.Profile = sketch5
pad2.Length = 22
pad2.Reversed = True

# Sketch on XY plane
sketch6 = doc.addObject("Sketcher::SketchObject", "Sketch005")
body.addObject(sketch6)
sketch6.AttachmentSupport = (doc.XY_Plane, [""])
sketch6.MapMode = "FlatFace"
add_polygon(sketch6, [(15.323695, 11.839131), (15.169492, 11.366946), (14.93697, 10.928001), (14.63295, 10.535178), (14.266353, 10.199999), (10.733648, 10.199999), (10.36705, 10.535178), (10.06303, 10.928001), (9.830508, 11.366946), (9.676306, 11.839131), (9.604946, 12.330706), (9.618524, 12.827248), (9.716639, 13.31419), (9.896415, 13.777243), (10.152578, 14.202824), (10.477611, 14.578447), (10.861977, 14.89309), (11.294401, 15.137523), (11.762195, 15.304576), (12.251637, 15.389346), (12.748363, 15.389346), (13.237804, 15.304576), (13.7056, 15.137523), (14.138023, 14.89309), (14.52239, 14.578447), (14.847423, 14.202824), (15.103584, 13.777243), (15.28336, 13.31419), (15.381478, 12.827248), (15.395055, 12.330706)])  # lines 0-29
sketch6.addConstraint([
    Sketcher.Constraint("Horizontal", 4),
    Sketcher.Constraint("Horizontal", 19),
    Sketcher.Constraint("Horizontal", 2, 2, 5, 2),
    Sketcher.Constraint("Horizontal", 1, 2, 6, 2),
    Sketcher.Constraint("Horizontal", 0, 2, 7, 2),
    Sketcher.Constraint("Horizontal", 17, 2, 20, 2),
    Sketcher.Constraint("Horizontal", 16, 2, 21, 2),
    Sketcher.Constraint("Horizontal", 15, 2, 22, 2),
    Sketcher.Constraint("Horizontal", 14, 2, 23, 2),
    Sketcher.Constraint("Horizontal", 13, 2, 24, 2),
    Sketcher.Constraint("Horizontal", 12, 2, 25, 2),
    Sketcher.Constraint("Horizontal", 11, 2, 26, 2),
    Sketcher.Constraint("Horizontal", 10, 2, 27, 2),
    Sketcher.Constraint("Horizontal", 9, 2, 28, 2),
    Sketcher.Constraint("Horizontal", 8, 2, 29, 2),
    Sketcher.Constraint("Equal", 0, 1),
    Sketcher.Constraint("Equal", 1, 2),
    Sketcher.Constraint("Equal", 2, 3),
    Sketcher.Constraint("Equal", 3, 5),
    Sketcher.Constraint("Equal", 5, 6),
    Sketcher.Constraint("Equal", 6, 7),
    Sketcher.Constraint("Equal", 7, 8),
    Sketcher.Constraint("Equal", 8, 9),
    Sketcher.Constraint("Equal", 9, 10),
    Sketcher.Constraint("Equal", 10, 11),
    Sketcher.Constraint("Equal", 10, 12),
    Sketcher.Constraint("Equal", 12, 13),
    Sketcher.Constraint("Equal", 13, 14),
    Sketcher.Constraint("Equal", 14, 15),
    Sketcher.Constraint("Equal", 15, 16),
    Sketcher.Constraint("Equal", 16, 17),
    Sketcher.Constraint("Equal", 17, 18),
    Sketcher.Constraint("Equal", 18, 20),
    Sketcher.Constraint("Equal", 20, 21),
    Sketcher.Constraint("Equal", 20, 22),
    Sketcher.Constraint("Equal", 22, 23),
    Sketcher.Constraint("Equal", 23, 24),
    Sketcher.Constraint("Equal", 24, 25),
    Sketcher.Constraint("Equal", 25, 26),
    Sketcher.Constraint("Equal", 25, 27),
    Sketcher.Constraint("Equal", 27, 28),
    Sketcher.Constraint("Equal", 28, 29),
    Sketcher.Constraint("DistanceY", -1, 1, 3, 2, Q("10.199999 mm")),
    Sketcher.Constraint("DistanceY", -1, 1, 1, 2, Q("10.928001 mm")),
    Sketcher.Constraint("DistanceX", -1, 1, 16, 2, Q("11.294401 mm")),
    Sketcher.Constraint("DistanceX", -1, 1, 21, 2, Q("13.7056 mm")),
    Sketcher.Constraint("DistanceX", 4, 2, 2, 2, Q("3.899301 mm")),
    Sketcher.Constraint("DistanceX", 5, 2, 4, 2, Q("0.366598 mm")),
    Sketcher.Constraint("DistanceY", 10, 2, 14, 2, Q("1.751198 mm")),
    Sketcher.Constraint("DistanceX", 13, 2, 15, 2, Q("0.709399 mm")),
    Sketcher.Constraint("DistanceY", 11, 2, 15, 2, Q("1.5789 mm")),
    Sketcher.Constraint("DistanceY", 13, 2, 16, 2, Q("0.9347 mm")),
    Sketcher.Constraint("DistanceY", 14, 2, 18, 2, Q("0.810899 mm")),
    Sketcher.Constraint("Distance", 1, Q("0.496728 mm")),
    Sketcher.Constraint("DistanceX", 19, 1, 19, 2, Q("0.496726 mm")),
    Sketcher.Constraint("DistanceX", -1, 1, 0, 2, Q("15.169492 mm")),
    Sketcher.Constraint("DistanceY", -1, 1, 8, 2, Q("11.839131 mm")),
    Sketcher.Constraint("DistanceY", -1, 1, 10, 2, Q("12.827248 mm")),
    Sketcher.Constraint("DistanceX", -1, 1, 11, 2, Q("9.716639 mm")),
    Sketcher.Constraint("DistanceY", -1, 1, 11, 2, Q("13.31419 mm")),
])
pocket4 = doc.addObject("PartDesign::Pocket", "Pocket003")
body.addObject(pocket4)
pocket4.Profile = sketch6
pocket4.Length = 22
pocket4.Reversed = True

doc.recompute()
